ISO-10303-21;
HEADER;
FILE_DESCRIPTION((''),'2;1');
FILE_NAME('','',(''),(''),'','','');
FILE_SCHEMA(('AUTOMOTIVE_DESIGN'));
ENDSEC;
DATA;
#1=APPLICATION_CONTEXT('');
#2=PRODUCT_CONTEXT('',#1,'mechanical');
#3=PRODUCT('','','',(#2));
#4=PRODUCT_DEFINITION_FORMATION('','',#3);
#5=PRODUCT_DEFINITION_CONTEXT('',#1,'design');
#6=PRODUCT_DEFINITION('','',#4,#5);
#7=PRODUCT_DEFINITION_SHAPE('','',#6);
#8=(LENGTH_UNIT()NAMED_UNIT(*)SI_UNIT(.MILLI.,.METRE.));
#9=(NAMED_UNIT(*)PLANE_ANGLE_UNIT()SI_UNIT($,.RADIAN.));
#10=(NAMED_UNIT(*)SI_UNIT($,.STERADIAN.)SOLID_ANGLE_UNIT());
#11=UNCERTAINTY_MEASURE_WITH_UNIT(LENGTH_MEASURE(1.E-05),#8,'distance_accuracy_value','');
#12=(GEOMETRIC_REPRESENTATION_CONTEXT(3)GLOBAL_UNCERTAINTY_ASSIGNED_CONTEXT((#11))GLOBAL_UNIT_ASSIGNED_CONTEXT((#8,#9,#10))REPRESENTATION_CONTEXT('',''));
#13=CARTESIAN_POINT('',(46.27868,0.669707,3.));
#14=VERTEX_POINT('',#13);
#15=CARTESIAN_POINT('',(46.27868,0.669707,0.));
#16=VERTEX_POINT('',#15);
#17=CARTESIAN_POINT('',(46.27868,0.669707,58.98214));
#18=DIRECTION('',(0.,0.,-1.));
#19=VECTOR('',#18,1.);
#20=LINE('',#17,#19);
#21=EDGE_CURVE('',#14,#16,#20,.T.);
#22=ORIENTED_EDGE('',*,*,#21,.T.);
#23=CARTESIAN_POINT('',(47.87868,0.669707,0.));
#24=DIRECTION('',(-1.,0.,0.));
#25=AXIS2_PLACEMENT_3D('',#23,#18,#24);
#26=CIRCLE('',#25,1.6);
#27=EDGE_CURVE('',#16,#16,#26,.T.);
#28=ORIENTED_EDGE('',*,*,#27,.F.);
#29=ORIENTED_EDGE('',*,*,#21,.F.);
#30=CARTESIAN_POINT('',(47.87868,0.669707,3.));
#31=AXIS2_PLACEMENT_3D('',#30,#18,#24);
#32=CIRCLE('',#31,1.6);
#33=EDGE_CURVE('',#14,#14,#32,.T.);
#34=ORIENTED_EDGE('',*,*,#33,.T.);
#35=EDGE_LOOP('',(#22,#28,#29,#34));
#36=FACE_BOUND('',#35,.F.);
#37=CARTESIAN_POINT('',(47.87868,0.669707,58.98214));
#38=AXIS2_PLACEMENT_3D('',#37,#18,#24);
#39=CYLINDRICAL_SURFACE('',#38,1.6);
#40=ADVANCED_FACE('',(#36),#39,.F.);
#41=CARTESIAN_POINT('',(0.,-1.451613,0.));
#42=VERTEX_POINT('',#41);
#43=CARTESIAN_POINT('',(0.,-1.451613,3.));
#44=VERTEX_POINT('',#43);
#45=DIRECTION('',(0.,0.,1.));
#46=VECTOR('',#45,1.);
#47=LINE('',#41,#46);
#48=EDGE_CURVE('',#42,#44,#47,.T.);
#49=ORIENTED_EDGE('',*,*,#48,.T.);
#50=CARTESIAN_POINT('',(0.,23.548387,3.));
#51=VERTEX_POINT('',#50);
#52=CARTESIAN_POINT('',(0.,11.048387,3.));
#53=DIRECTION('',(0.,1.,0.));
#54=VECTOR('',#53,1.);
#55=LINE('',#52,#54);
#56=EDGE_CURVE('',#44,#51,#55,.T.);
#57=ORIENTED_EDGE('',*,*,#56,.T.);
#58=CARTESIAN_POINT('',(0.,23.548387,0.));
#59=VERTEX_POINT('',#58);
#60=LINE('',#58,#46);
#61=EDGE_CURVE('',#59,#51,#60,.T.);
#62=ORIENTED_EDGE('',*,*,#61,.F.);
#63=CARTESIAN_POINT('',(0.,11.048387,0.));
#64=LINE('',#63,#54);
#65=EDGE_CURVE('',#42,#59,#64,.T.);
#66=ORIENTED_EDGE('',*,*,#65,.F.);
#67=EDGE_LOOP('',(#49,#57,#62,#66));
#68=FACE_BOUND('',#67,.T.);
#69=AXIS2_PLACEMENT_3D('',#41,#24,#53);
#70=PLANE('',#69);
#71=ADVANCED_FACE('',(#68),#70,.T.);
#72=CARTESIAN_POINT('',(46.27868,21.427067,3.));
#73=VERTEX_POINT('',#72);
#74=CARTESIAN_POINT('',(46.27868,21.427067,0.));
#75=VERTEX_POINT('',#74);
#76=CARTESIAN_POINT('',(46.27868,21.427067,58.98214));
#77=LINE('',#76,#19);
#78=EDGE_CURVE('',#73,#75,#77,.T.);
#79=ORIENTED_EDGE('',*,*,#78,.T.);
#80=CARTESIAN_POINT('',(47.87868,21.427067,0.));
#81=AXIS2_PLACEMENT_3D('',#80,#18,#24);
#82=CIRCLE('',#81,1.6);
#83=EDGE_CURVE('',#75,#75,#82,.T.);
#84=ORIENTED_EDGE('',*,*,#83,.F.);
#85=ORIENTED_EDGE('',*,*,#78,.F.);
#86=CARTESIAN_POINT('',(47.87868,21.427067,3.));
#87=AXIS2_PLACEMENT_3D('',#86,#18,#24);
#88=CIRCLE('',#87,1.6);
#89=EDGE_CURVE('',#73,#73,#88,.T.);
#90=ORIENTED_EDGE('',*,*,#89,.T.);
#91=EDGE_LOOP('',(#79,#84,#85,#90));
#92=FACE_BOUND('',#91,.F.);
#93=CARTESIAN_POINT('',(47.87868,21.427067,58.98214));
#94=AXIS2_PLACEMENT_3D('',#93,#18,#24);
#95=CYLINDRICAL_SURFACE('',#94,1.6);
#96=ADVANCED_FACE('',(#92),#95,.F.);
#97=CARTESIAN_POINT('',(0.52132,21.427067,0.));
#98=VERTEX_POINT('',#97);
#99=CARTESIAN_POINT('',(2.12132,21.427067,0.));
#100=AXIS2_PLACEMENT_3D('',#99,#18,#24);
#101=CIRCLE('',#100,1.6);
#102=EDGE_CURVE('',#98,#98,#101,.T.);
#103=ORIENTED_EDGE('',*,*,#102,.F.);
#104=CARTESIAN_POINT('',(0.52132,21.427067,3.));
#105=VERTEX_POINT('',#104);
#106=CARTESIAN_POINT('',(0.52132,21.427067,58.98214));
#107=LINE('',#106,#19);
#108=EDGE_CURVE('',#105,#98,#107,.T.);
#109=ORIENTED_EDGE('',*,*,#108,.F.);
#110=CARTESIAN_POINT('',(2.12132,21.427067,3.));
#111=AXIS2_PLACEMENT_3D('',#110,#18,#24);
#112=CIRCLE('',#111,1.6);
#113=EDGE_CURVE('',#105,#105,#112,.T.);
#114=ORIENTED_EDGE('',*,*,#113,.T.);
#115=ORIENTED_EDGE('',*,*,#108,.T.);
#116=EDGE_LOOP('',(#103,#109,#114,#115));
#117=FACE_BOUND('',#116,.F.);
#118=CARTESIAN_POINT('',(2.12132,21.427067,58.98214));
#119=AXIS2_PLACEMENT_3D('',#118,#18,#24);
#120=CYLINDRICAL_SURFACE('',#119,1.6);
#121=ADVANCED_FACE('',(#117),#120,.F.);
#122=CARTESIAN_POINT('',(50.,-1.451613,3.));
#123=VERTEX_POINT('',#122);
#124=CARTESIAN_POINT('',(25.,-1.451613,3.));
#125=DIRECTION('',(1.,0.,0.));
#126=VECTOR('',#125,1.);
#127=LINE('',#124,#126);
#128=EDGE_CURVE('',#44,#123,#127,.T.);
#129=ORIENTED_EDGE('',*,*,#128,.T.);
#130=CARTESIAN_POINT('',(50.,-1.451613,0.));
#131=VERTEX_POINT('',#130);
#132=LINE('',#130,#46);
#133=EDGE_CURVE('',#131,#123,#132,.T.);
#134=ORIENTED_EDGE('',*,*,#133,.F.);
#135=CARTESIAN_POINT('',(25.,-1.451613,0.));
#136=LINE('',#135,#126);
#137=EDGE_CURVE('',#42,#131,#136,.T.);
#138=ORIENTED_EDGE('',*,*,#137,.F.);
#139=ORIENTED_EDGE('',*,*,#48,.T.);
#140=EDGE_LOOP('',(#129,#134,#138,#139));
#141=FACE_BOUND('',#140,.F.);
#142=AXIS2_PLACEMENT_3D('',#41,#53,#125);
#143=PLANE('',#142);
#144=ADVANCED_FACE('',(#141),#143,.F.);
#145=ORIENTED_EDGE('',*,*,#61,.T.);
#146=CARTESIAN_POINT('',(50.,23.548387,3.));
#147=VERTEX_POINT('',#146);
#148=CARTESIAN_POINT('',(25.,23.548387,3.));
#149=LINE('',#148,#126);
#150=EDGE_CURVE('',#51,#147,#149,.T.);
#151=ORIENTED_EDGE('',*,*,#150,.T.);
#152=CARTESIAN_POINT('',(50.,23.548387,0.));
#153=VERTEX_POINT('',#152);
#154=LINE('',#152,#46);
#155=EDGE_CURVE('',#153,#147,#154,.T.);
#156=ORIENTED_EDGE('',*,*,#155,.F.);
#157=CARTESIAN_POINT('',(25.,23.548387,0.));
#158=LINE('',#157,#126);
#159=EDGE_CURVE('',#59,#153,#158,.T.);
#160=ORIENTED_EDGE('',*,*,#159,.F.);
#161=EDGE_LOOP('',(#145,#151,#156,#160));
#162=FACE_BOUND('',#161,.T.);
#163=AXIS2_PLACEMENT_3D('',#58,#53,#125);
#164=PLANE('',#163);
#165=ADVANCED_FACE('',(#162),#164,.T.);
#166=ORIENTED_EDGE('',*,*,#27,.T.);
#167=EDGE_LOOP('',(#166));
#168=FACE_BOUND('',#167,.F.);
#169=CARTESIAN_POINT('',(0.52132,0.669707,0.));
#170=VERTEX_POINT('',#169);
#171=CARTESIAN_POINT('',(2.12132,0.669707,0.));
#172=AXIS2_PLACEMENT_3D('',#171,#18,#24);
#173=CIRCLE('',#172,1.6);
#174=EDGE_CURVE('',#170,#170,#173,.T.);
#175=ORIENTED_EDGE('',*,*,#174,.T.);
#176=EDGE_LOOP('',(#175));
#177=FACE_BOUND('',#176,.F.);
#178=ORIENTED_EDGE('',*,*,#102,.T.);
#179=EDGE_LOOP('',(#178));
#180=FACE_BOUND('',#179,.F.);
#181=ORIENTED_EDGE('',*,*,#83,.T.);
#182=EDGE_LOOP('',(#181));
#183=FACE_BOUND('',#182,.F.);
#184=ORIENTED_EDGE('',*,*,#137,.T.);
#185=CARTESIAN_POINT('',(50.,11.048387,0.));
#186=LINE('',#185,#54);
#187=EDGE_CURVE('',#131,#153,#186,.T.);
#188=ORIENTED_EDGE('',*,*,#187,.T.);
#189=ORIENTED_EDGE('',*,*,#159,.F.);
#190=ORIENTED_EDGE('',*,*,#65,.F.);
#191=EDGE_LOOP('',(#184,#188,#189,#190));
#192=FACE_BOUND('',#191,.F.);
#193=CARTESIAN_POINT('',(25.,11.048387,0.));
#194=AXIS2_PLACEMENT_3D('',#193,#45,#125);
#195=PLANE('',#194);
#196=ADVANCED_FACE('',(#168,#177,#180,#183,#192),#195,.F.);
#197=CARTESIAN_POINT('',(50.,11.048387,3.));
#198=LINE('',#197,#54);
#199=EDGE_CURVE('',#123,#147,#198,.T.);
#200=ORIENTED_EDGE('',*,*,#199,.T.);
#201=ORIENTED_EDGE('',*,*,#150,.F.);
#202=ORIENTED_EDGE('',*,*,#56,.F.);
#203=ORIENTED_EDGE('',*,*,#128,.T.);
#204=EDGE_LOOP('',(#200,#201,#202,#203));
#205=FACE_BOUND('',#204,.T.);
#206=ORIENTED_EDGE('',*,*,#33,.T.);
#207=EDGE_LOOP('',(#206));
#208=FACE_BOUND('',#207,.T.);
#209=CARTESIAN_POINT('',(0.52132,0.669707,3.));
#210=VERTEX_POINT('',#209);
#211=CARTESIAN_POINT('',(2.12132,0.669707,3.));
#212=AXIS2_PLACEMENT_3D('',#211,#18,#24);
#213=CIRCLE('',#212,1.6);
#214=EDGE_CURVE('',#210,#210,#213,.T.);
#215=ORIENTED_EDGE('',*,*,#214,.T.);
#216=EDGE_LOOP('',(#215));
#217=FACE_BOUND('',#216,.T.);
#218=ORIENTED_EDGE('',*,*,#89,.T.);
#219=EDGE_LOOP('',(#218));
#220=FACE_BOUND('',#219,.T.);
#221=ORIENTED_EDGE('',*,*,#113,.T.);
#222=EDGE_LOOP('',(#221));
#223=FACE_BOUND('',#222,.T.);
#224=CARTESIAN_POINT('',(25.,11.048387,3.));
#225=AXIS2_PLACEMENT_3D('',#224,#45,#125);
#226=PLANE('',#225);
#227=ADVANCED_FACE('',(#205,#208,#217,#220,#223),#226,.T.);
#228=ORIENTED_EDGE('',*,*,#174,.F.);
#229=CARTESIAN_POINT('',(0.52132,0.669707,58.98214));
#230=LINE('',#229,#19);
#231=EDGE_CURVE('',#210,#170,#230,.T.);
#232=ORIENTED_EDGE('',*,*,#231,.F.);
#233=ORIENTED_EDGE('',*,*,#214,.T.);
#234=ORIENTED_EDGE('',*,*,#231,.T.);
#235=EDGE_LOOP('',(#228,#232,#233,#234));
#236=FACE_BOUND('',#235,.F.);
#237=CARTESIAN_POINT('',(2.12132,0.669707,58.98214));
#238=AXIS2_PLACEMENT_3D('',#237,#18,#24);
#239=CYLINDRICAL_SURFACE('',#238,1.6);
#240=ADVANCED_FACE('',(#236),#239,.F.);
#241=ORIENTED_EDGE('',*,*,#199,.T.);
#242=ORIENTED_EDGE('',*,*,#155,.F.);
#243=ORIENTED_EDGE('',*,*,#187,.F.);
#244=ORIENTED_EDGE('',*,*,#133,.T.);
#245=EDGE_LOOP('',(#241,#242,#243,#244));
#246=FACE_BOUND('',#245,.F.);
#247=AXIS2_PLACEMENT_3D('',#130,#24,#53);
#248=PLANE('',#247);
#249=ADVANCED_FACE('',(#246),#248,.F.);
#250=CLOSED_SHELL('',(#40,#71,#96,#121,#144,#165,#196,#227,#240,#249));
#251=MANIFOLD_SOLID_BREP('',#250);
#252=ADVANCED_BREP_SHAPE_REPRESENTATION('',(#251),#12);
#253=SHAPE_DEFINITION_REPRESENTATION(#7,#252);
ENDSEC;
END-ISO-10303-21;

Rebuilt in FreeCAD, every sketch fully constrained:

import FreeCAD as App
import Part
import Sketcher
from FreeCAD import Vector
Q = App.Units.Quantity


def add_polygon(sketch, points):
    """Adds a closed chain of lines whose ends are joined by coincident constraints."""
    first, n = sketch.GeometryCount, len(points)
    for a, b in zip(points, points[1:] + points[:1]):
        sketch.addGeometry(Part.LineSegment(App.Vector(*a, 0), App.Vector(*b, 0)), False)
    for i in range(n):
        sketch.addConstraint(Sketcher.Constraint("Coincident", first + i, 2, first + (i + 1) % n, 1))

doc = App.newDocument("Part")
body = doc.addObject("PartDesign::Body", "Body")

# Sketch on XY plane
sketch1 = body.newObject("Sketcher::SketchObject", "Sketch")
sketch1.AttachmentSupport = (doc.getObject("XY_Plane"), [""])
sketch1.MapMode = "FlatFace"
add_polygon(sketch1, [(0, 24), (0, -1), (50, -1), (50, 24)])  # lines 0-3
sketch1.addConstraint(Sketcher.Constraint("Vertical", 0))
sketch1.addConstraint(Sketcher.Constraint("Horizontal", 1))
sketch1.addConstraint(Sketcher.Constraint("Vertical", 2))
sketch1.addConstraint(Sketcher.Constraint("Horizontal", 3))
sketch1.addConstraint(Sketcher.Constraint("PointOnObject", 0, 2, -2))
sketch1.addConstraint(Sketcher.Constraint("DistanceX", 1, 1, 1, 2, Q("50 mm")))
sketch1.addConstraint(Sketcher.Constraint("DistanceY", 0, 2, 0, 1, Q("25 mm")))
sketch1.addConstraint(Sketcher.Constraint("DistanceY", 0, 2, -1, 1, Q("1.451613 mm")))
pad1 = body.newObject("PartDesign::Pad", "Pad")
pad1.Profile = sketch1
pad1.Length = 3

# Sketch on XY plane
sketch2 = body.newObject("Sketcher::SketchObject", "Sketch001")
sketch2.AttachmentSupport = (doc.getObject("XY_Plane"), [""])
sketch2.MapMode = "FlatFace"
sketch2.AttachmentOffset = App.Placement(Vector(0, 0, 3), App.Rotation())
sketch2.addGeometry(Part.Circle(Vector(2.1, 21.4, 0), Vector(0, 0, 1), 1.6), False)
sketch2.addGeometry(Part.Circle(Vector(47.9, 21.4, 0), Vector(0, 0, 1), 1.6), False)
sketch2.addGeometry(Part.Circle(Vector(47.9, 0.7, 0), Vector(0, 0, 1), 1.6), False)
sketch2.addGeometry(Part.Circle(Vector(2.1, 0.7, 0), Vector(0, 0, 1), 1.6), False)
sketch2.addConstraint(Sketcher.Constraint("Equal", 0, 1))
sketch2.addConstraint(Sketcher.Constraint("Equal", 1, 2))
sketch2.addConstraint(Sketcher.Constraint("Equal", 2, 3))
sketch2.addConstraint(Sketcher.Constraint("Horizontal", 0, 3, 1, 3))
sketch2.addConstraint(Sketcher.Constraint("Horizontal", 2, 3, 3, 3))
sketch2.addConstraint(Sketcher.Constraint("Vertical", 1, 3, 2, 3))
sketch2.addConstraint(Sketcher.Constraint("Vertical", 0, 3, 3, 3))
sketch2.addConstraint(Sketcher.Constraint("Diameter", 0, Q("3.2 mm")))
sketch2.addConstraint(Sketcher.Constraint("DistanceX", -1, 1, 0, 3, Q("2.12132 mm")))
sketch2.addConstraint(Sketcher.Constraint("DistanceX", -1, 1, 1, 3, Q("47.87868 mm")))
sketch2.addConstraint(Sketcher.Constraint("DistanceY", 2, 3, 1, 3, Q("20.75736 mm")))
sketch2.addConstraint(Sketcher.Constraint("DistanceY", -1, 1, 0, 3, Q("21.427067 mm")))
doc.recompute()
hole = body.newObject("PartDesign::Hole", "Hole")
hole.Profile = sketch2
hole.ThreadType = "None"
hole.Diameter = 3.2
hole.DepthType = "ThroughAll"

doc.recompute()
